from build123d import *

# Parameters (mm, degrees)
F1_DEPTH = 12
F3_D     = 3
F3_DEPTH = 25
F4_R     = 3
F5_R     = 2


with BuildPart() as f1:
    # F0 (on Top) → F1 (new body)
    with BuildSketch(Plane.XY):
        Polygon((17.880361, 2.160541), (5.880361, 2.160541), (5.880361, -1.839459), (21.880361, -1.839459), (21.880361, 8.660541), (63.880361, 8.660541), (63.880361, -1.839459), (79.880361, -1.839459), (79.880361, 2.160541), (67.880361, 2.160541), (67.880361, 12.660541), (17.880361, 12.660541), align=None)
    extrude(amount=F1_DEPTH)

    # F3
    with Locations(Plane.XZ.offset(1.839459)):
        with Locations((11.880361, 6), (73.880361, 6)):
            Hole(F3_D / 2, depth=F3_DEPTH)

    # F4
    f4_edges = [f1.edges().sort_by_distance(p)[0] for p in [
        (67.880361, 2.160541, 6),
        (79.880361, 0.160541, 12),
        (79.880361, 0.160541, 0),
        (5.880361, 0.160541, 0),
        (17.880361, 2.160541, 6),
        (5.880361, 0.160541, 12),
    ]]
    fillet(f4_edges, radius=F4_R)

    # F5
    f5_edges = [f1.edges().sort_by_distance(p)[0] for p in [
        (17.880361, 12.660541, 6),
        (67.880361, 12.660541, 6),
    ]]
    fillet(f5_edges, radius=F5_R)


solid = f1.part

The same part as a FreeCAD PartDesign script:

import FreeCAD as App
import Part
import Sketcher
from FreeCAD import Vector
Q = App.Units.Quantity


def edges_at(feature, points):
    """Names of the edges that pass closest to the given points."""
    edges = feature.Shape.Edges
    near = lambda p: min(range(len(edges)), key=lambda i: edges[i].distToShape(Part.Vertex(*p))[0])
    return sorted({f"Edge{near(p) + 1}" for p in points})

doc = App.newDocument("Part")
body = doc.addObject("PartDesign::Body", "Body")

# Sketch on XY plane
sketch1 = body.newObject("Sketcher::SketchObject", "Sketch")
sketch1.AttachmentSupport = (doc.getObject("XY_Plane"), [""])
sketch1.MapMode = "FlatFace"
sketch1.addGeometry([
    Part.LineSegment(Vector(17.9, 2.2, 0), Vector(5.9, 2.2, 0)),  # 0
    Part.LineSegment(Vector(5.9, 2.2, 0), Vector(5.9, -1.8, 0)),  # 1
    Part.LineSegment(Vector(5.9, -1.8, 0), Vector(21.9, -1.8, 0)),  # 2
    Part.LineSegment(Vector(21.9, -1.8, 0), Vector(21.9, 8.7, 0)),  # 3
    Part.LineSegment(Vector(21.9, 8.7, 0), Vector(63.9, 8.7, 0)),  # 4
    Part.LineSegment(Vector(63.9, 8.7, 0), Vector(63.9, -1.8, 0)),  # 5
    Part.LineSegment(Vector(63.9, -1.8, 0), Vector(79.9, -1.8, 0)),  # 6
    Part.LineSegment(Vector(79.9, -1.8, 0), Vector(79.9, 2.2, 0)),  # 7
    Part.LineSegment(Vector(79.9, 2.2, 0), Vector(67.9, 2.2, 0)),  # 8
    Part.LineSegment(Vector(67.9, 2.2, 0), Vector(67.9, 12.7, 0)),  # 9
    Part.LineSegment(Vector(67.9, 12.7, 0), Vector(17.9, 12.7, 0)),  # 10
    Part.LineSegment(Vector(17.9, 12.7, 0), Vector(17.9, 2.2, 0)),  # 11
], False)
sketch1.addConstraint([
    Sketcher.Constraint("Coincident", 0, 2, 1, 1),
    Sketcher.Constraint("Coincident", 1, 2, 2, 1),
    Sketcher.Constraint("Coincident", 2, 2, 3, 1),
    Sketcher.Constraint("Coincident", 3, 2, 4, 1),
    Sketcher.Constraint("Coincident", 4, 2, 5, 1),
    Sketcher.Constraint("Coincident", 5, 2, 6, 1),
    Sketcher.Constraint("Coincident", 6, 2, 7, 1),
    Sketcher.Constraint("Coincident", 7, 2, 8, 1),
    Sketcher.Constraint("Coincident", 8, 2, 9, 1),
    Sketcher.Constraint("Coincident", 9, 2, 10, 1),
    Sketcher.Constraint("Coincident", 10, 2, 11, 1),
    Sketcher.Constraint("Coincident", 11, 2, 0, 1),
    Sketcher.Constraint("Horizontal", 0),
    Sketcher.Constraint("Vertical", 1),
    Sketcher.Constraint("Horizontal", 2),
    Sketcher.Constraint("Vertical", 3),
    Sketcher.Constraint("Horizontal", 4),
    Sketcher.Constraint("Vertical", 5),
    Sketcher.Constraint("Horizontal", 6),
    Sketcher.Constraint("Vertical", 7),
    Sketcher.Constraint("Horizontal", 8),
    Sketcher.Constraint("Vertical", 9),
    Sketcher.Constraint("Horizontal", 10),
    Sketcher.Constraint("Vertical", 11),
    Sketcher.Constraint("Horizontal", 2, 2, 5, 2),
    Sketcher.Constraint("Horizontal", 0, 2, 7, 2),
    Sketcher.Constraint("Equal", 2, 6),
    Sketcher.Constraint("Equal", 0, 8),
    Sketcher.Constraint("Equal", 5, 9),
    Sketcher.Constraint("DistanceX", 0, 2, 0, 1, Q("12 mm")),
    Sketcher.Constraint("DistanceX", 2, 1, 2, 2, Q("16 mm")),
    Sketcher.Constraint("DistanceX", 4, 1, 4, 2, Q("42 mm")),
    Sketcher.Constraint("DistanceY", 1, 2, 1, 1, Q("4 mm")),
    Sketcher.Constraint("DistanceY", 3, 1, 3, 2, Q("10.5 mm")),
    Sketcher.Constraint("DistanceX", -1, 1, 0, 2, Q("5.880361 mm")),
    Sketcher.Constraint("DistanceY", -1, 1, 0, 2, Q("2.160541 mm")),
])
pad1 = body.newObject("PartDesign::Pad", "Pad")
pad1.Profile = sketch1
pad1.Length = 12

# Sketch on XZ plane
sketch2 = body.newObject("Sketcher::SketchObject", "Sketch001")
sketch2.AttachmentSupport = (doc.getObject("XZ_Plane"), [""])
sketch2.MapMode = "FlatFace"
sketch2.AttachmentOffset = App.Placement(Vector(0, 0, 1.839459), App.Rotation())
sketch2.addGeometry([
    Part.Circle(Vector(11.9, 6, 0), Vector(0, 0, 1), 1.5),
    Part.Circle(Vector(73.9, 6, 0), Vector(0, 0, 1), 1.5),
], False)
sketch2.addConstraint([
    Sketcher.Constraint("Equal", 0, 1),
    Sketcher.Constraint("Horizontal", 0, 3, 1, 3),
    Sketcher.Constraint("Diameter", 0, Q("3 mm")),
    Sketcher.Constraint("DistanceY", -1, 1, 0, 3, Q("6 mm")),
    Sketcher.Constraint("DistanceX", 0, 3, 1, 3, Q("62 mm")),
    Sketcher.Constraint("DistanceX", -1, 1, 0, 3, Q("11.880361 mm")),
])
doc.recompute()
hole = body.newObject("PartDesign::Hole", "Hole")
hole.Profile = sketch2
hole.ThreadType = "None"
hole.Diameter = 3
hole.DepthType = "Dimension"
hole.Depth = 25
hole.DrillPoint = "Flat"
doc.recompute()

fillet = body.newObject("PartDesign::Fillet", "Fillet")
fillet.Base = (hole, edges_at(hole, [
    (67.88, 2.161, 6),
    (79.88, 0.161, 12),
    (79.88, 0.161, 0),
    (5.88, 0.161, 0),
    (17.88, 2.161, 6),
    (5.88, 0.161, 12),
]))
fillet.Radius = 3
doc.recompute()

fillet2 = body.newObject("PartDesign::Fillet", "Fillet001")
fillet2.Base = (fillet, edges_at(fillet, [(17.88, 12.661, 6), (67.88, 12.661, 6)]))
fillet2.Radius = 2

doc.recompute()
